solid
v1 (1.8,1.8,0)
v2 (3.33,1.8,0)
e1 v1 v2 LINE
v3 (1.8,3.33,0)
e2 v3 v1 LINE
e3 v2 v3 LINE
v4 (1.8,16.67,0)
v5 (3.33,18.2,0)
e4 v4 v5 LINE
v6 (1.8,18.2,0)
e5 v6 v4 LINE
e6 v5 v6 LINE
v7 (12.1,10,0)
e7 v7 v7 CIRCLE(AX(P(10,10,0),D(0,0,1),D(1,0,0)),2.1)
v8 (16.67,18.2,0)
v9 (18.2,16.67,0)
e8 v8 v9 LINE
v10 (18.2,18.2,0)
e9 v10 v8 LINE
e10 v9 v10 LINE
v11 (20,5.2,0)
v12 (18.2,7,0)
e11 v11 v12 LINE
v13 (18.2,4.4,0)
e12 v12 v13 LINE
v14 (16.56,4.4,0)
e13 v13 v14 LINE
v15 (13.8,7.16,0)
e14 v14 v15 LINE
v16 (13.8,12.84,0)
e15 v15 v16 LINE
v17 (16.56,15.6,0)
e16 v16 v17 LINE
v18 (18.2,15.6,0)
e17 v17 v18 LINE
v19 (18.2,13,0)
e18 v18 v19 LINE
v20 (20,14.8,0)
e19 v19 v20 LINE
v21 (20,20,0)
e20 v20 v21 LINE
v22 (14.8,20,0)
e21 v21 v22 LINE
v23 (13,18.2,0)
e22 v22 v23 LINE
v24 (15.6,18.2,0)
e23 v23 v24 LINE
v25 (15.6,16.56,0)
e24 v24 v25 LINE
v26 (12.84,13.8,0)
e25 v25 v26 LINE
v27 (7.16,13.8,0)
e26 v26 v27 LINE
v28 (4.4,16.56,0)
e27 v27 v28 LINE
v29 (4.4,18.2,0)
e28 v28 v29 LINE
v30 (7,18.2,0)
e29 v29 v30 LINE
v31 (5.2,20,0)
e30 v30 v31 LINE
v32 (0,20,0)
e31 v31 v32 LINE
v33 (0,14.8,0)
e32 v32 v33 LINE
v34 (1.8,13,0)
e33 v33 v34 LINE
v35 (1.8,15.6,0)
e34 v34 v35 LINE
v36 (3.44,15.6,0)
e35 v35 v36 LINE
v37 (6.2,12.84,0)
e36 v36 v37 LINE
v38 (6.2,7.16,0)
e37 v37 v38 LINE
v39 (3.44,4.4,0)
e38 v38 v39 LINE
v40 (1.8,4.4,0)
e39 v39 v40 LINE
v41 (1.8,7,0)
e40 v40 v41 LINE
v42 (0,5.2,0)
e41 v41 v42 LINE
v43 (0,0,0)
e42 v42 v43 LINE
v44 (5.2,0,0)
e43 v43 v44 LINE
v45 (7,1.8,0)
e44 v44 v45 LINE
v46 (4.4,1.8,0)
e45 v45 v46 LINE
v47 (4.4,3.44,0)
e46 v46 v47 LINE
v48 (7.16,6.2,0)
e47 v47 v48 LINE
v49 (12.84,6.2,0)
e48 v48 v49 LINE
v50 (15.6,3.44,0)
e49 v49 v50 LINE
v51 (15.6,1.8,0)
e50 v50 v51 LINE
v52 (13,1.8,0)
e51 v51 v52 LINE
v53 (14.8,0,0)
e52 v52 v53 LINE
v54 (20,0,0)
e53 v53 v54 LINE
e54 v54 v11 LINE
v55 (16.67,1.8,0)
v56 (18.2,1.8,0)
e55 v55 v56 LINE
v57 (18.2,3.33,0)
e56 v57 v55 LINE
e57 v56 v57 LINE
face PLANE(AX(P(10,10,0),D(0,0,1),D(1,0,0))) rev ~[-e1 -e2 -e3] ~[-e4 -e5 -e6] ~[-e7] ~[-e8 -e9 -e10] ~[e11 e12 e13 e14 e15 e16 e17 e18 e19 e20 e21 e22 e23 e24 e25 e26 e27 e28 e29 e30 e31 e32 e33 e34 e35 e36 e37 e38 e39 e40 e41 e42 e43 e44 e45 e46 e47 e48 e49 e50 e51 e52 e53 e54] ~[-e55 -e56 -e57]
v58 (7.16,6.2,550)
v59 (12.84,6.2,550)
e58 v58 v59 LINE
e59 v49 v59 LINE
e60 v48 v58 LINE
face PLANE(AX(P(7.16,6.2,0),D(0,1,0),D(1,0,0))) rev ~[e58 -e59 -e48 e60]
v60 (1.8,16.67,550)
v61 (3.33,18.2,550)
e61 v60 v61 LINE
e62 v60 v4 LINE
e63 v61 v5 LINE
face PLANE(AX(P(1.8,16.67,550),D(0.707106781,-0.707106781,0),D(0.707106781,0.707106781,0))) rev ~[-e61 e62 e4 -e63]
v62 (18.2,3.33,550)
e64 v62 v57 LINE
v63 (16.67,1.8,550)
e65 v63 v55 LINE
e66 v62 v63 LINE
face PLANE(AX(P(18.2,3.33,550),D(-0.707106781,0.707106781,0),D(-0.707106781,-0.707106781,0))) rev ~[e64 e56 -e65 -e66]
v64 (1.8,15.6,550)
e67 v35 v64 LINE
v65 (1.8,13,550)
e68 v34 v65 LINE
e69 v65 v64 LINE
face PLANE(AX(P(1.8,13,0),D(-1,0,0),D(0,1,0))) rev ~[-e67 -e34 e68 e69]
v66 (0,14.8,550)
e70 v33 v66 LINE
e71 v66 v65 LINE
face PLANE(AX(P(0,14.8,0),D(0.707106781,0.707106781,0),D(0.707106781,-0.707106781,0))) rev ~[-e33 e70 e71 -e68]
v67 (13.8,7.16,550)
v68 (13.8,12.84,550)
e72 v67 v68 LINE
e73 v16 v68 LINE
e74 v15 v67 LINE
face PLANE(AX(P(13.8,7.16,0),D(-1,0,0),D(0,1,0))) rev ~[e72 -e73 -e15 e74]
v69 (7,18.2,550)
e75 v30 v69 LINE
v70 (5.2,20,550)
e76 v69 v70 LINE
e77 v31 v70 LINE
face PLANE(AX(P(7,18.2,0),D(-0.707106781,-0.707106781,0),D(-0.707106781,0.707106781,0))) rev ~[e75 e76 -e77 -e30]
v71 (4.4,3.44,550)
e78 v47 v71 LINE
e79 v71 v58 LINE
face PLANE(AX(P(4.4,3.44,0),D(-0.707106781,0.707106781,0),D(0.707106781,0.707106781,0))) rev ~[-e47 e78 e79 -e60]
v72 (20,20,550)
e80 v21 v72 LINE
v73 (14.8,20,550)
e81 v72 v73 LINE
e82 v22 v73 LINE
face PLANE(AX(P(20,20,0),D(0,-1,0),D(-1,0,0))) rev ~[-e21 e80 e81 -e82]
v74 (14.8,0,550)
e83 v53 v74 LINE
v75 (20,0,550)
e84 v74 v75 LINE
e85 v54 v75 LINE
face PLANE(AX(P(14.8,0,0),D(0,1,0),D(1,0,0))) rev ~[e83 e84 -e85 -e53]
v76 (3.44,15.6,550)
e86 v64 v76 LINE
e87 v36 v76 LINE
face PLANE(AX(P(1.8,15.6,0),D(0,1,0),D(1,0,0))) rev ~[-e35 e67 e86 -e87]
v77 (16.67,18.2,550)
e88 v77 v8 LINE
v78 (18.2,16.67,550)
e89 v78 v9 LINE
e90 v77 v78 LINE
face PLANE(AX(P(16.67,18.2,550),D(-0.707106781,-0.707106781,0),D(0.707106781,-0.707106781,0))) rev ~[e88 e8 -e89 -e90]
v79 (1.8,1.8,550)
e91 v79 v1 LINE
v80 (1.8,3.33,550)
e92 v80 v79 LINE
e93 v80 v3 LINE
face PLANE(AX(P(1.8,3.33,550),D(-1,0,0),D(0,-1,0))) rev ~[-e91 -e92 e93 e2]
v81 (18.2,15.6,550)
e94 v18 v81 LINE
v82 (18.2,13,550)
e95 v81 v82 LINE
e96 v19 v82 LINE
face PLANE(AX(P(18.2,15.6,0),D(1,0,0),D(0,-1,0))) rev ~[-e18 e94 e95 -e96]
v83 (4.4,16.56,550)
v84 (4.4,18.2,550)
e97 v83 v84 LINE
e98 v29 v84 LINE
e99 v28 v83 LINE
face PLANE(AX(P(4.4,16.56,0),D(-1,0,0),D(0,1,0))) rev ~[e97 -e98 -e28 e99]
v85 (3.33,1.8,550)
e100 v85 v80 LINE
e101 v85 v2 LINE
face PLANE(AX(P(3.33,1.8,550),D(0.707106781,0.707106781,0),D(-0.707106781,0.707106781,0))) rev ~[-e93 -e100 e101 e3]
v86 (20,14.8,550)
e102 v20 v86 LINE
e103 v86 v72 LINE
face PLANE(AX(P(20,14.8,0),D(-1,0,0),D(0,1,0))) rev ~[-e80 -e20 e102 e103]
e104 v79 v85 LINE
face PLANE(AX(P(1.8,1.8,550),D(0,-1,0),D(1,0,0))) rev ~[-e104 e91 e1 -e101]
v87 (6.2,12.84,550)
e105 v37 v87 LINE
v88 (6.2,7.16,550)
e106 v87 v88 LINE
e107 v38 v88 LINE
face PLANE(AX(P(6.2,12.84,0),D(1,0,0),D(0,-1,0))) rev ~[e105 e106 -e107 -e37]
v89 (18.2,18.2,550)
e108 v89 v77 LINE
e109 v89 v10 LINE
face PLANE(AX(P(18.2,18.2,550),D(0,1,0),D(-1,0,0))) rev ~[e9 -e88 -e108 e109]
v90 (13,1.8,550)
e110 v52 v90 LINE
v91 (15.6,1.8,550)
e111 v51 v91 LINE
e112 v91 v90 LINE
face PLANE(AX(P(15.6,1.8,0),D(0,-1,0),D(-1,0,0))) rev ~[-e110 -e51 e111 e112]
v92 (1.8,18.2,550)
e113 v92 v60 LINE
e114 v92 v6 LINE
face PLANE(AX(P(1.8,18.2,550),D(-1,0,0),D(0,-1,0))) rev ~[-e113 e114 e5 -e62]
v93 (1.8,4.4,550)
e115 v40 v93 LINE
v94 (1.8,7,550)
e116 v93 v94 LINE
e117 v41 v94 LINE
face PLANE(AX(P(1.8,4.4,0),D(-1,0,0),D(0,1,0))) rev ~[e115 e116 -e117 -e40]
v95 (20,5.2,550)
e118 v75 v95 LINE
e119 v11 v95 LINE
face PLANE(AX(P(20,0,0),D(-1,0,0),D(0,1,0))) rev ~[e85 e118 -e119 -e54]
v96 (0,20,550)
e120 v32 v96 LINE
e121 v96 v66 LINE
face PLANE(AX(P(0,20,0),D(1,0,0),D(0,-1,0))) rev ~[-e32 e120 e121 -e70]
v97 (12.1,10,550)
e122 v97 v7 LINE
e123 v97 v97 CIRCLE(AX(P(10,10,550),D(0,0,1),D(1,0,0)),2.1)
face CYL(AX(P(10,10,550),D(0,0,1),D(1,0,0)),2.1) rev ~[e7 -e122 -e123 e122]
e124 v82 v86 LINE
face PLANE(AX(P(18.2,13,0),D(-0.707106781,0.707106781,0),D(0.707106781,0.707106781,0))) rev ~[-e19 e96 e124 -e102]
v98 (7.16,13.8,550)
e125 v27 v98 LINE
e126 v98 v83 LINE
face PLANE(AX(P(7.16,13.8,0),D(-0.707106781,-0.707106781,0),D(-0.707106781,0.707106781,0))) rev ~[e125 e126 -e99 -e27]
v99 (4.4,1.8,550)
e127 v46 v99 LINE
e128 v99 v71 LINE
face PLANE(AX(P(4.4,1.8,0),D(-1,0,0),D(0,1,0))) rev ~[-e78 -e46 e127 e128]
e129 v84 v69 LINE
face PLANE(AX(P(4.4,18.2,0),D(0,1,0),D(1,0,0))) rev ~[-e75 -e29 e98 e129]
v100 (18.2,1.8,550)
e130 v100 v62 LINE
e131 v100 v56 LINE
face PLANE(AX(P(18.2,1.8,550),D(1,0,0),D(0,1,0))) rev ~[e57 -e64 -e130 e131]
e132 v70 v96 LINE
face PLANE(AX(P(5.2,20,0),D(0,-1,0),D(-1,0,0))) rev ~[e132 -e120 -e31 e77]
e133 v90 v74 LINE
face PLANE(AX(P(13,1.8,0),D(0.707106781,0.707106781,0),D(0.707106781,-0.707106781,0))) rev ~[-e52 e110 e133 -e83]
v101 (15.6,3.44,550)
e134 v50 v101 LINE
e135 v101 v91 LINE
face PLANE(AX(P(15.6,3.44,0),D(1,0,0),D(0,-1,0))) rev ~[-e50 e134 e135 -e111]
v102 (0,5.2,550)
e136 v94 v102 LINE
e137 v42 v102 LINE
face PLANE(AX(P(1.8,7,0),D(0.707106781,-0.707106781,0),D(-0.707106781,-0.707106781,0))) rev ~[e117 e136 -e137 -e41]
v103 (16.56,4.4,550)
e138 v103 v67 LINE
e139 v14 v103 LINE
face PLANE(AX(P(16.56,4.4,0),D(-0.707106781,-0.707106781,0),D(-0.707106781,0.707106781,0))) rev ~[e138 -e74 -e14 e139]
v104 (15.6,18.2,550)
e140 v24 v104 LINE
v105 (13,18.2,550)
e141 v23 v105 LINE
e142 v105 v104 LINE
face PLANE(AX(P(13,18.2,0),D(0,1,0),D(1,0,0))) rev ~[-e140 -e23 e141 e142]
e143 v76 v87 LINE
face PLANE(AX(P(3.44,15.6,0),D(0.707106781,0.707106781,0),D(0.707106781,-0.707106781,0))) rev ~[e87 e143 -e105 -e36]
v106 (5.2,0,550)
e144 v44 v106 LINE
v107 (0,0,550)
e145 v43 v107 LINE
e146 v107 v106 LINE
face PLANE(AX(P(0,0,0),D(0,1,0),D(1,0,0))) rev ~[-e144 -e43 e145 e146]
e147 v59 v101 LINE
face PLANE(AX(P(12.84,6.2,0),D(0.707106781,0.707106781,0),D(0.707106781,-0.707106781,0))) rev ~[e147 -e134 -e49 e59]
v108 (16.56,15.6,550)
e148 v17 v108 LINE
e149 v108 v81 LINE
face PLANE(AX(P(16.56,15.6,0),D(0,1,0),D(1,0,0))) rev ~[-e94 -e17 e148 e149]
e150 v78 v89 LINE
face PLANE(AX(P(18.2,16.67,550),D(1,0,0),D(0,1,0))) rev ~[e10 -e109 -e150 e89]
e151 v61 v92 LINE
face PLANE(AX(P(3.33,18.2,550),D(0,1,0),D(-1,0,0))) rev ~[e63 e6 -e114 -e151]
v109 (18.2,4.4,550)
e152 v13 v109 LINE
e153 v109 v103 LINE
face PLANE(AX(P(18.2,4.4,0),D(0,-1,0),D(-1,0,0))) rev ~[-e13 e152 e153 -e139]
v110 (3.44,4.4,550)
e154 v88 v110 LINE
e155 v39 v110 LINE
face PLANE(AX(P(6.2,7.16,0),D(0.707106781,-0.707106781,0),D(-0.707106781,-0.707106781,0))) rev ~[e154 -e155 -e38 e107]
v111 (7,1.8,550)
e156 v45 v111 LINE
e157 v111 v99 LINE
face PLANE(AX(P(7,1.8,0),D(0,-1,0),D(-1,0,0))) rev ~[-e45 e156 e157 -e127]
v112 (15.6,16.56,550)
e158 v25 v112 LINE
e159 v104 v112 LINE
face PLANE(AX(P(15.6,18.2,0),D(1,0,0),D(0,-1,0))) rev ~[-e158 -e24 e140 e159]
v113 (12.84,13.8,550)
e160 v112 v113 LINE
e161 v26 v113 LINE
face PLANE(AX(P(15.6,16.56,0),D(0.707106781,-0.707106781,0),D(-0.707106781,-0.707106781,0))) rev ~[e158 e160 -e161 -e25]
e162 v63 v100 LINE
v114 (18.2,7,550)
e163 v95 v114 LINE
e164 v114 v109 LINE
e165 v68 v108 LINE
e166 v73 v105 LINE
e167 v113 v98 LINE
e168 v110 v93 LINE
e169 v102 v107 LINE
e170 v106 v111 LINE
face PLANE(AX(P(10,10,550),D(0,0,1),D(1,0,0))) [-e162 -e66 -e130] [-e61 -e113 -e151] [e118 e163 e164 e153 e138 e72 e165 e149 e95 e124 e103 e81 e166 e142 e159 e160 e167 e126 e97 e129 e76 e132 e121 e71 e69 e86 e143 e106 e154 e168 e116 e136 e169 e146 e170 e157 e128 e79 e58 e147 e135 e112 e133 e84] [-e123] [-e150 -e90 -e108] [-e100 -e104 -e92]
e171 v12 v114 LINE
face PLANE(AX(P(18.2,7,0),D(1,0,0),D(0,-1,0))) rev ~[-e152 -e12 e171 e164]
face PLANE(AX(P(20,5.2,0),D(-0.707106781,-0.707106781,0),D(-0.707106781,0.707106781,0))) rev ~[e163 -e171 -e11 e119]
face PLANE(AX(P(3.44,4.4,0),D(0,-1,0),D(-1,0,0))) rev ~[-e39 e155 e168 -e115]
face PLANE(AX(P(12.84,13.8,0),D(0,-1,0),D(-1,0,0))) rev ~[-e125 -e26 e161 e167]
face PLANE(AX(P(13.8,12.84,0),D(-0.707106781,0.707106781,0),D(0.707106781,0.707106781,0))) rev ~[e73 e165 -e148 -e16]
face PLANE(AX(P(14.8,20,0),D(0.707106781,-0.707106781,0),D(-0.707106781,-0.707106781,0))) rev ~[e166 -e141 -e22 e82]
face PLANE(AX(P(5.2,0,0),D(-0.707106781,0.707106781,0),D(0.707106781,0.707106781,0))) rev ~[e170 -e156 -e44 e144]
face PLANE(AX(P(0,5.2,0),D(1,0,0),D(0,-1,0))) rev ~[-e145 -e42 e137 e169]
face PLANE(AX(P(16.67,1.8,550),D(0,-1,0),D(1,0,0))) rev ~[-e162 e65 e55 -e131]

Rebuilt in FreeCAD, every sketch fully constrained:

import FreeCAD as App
import Part
import Sketcher
from FreeCAD import Vector
Q = App.Units.Quantity


def add_polygon(sketch, points):
    """Adds a closed chain of lines whose ends are joined by coincident constraints."""
    first, n = sketch.GeometryCount, len(points)
    for a, b in zip(points, points[1:] + points[:1]):
        sketch.addGeometry(Part.LineSegment(App.Vector(*a, 0), App.Vector(*b, 0)), False)
    for i in range(n):
        sketch.addConstraint(Sketcher.Constraint("Coincident", first + i, 2, first + (i + 1) % n, 1))

doc = App.newDocument("Part")
body = doc.addObject("PartDesign::Body", "Body")

sketch1 = doc.addObject("Sketcher::SketchObject", "Sketch")
body.addObject(sketch1)
sketch1.AttachmentSupport = (doc.XY_Plane, [""])
sketch1.MapMode = "FlatFace"
add_polygon(sketch1, [(0, 5.2), (0, 0), (5.2, 0), (7, 1.8), (4.4, 1.8), (4.4, 3.4), (7.2, 6.2), (12.8, 6.2), (15.6, 3.4), (15.6, 1.8), (13, 1.8), (14.8, 0), (20, 0), (20, 5.2), (18.2, 7), (18.2, 4.4), (16.6, 4.4), (13.8, 7.2), (13.8, 12.8), (16.6, 15.6), (18.2, 15.6), (18.2, 13), (20, 14.8), (20, 20), (14.8, 20), (13, 18.2), (15.6, 18.2), (15.6, 16.6), (12.8, 13.8), (7.2, 13.8), (4.4, 16.6), (4.4, 18.2), (7, 18.2), (5.2, 20), (0, 20), (0, 14.8), (1.8, 13), (1.8, 15.6), (3.4, 15.6), (6.2, 12.8), (6.2, 7.2), (3.4, 4.4), (1.8, 4.4), (1.8, 7)])
sketch1.addConstraint(Sketcher.Constraint("Vertical", 0))
sketch1.addConstraint(Sketcher.Constraint("Horizontal", 1))
sketch1.addConstraint(Sketcher.Constraint("Horizontal", 3))
sketch1.addConstraint(Sketcher.Constraint("Vertical", 4))
sketch1.addConstraint(Sketcher.Constraint("Horizontal", 6))
sketch1.addConstraint(Sketcher.Constraint("Vertical", 8))
sketch1.addConstraint(Sketcher.Constraint("Horizontal", 9))
sketch1.addConstraint(Sketcher.Constraint("Horizontal", 11))
sketch1.addConstraint(Sketcher.Constraint("Vertical", 12))
sketch1.addConstraint(Sketcher.Constraint("Vertical", 14))
sketch1.addConstraint(Sketcher.Constraint("Horizontal", 15))
sketch1.addConstraint(Sketcher.Constraint("Vertical", 17))
sketch1.addConstraint(Sketcher.Constraint("Horizontal", 19))
sketch1.addConstraint(Sketcher.Constraint("Vertical", 20))
sketch1.addConstraint(Sketcher.Constraint("Vertical", 22))
sketch1.addConstraint(Sketcher.Constraint("Horizontal", 23))
sketch1.addConstraint(Sketcher.Constraint("Horizontal", 25))
sketch1.addConstraint(Sketcher.Constraint("Vertical", 26))
sketch1.addConstraint(Sketcher.Constraint("Horizontal", 28))
sketch1.addConstraint(Sketcher.Constraint("Vertical", 30))
sketch1.addConstraint(Sketcher.Constraint("Horizontal", 31))
sketch1.addConstraint(Sketcher.Constraint("Horizontal", 33))
sketch1.addConstraint(Sketcher.Constraint("Vertical", 34))
sketch1.addConstraint(Sketcher.Constraint("Vertical", 36))
sketch1.addConstraint(Sketcher.Constraint("Horizontal", 37))
sketch1.addConstraint(Sketcher.Constraint("Vertical", 39))
sketch1.addConstraint(Sketcher.Constraint("Horizontal", 41))
sketch1.addConstraint(Sketcher.Constraint("Vertical", 42))
sketch1.addConstraint(Sketcher.Constraint("Coincident", 0, 2, -1, 1))
sketch1.addConstraint(Sketcher.Constraint("PointOnObject", 10, 2, -1))
sketch1.addConstraint(Sketcher.Constraint("PointOnObject", 33, 2, -2))
sketch1.addConstraint(Sketcher.Constraint("Parallel", 2, 5))
sketch1.addConstraint(Sketcher.Constraint("Perpendicular", 5, 7))
sketch1.addConstraint(Sketcher.Constraint("Parallel", 7, 10))
sketch1.addConstraint(Sketcher.Constraint("Parallel", 10, 13))
sketch1.addConstraint(Sketcher.Constraint("Parallel", 13, 16))
sketch1.addConstraint(Sketcher.Constraint("Perpendicular", 16, 18))
sketch1.addConstraint(Sketcher.Constraint("Parallel", 18, 21))
sketch1.addConstraint(Sketcher.Constraint("Parallel", 21, 24))
sketch1.addConstraint(Sketcher.Constraint("Parallel", 24, 27))
sketch1.addConstraint(Sketcher.Constraint("Perpendicular", 27, 29))
sketch1.addConstraint(Sketcher.Constraint("Parallel", 29, 32))
sketch1.addConstraint(Sketcher.Constraint("Parallel", 32, 35))
sketch1.addConstraint(Sketcher.Constraint("Parallel", 35, 38))
sketch1.addConstraint(Sketcher.Constraint("Perpendicular", 38, 40))
sketch1.addConstraint(Sketcher.Constraint("Parallel", 40, 43))
sketch1.addConstraint(Sketcher.Constraint("Horizontal", 4, 2, 7, 2))
sketch1.addConstraint(Sketcher.Constraint("Horizontal", 3, 2, 8, 2))
sketch1.addConstraint(Sketcher.Constraint("Horizontal", 26, 2, 29, 2))
sketch1.addConstraint(Sketcher.Constraint("Horizontal", 25, 2, 30, 2))
sketch1.addConstraint(Sketcher.Constraint("Horizontal", 23, 2, 32, 2))
sketch1.addConstraint(Sketcher.Constraint("Horizontal", 21, 2, 34, 2))
sketch1.addConstraint(Sketcher.Constraint("Horizontal", 20, 2, 35, 2))
sketch1.addConstraint(Sketcher.Constraint("Horizontal", 19, 2, 36, 2))
sketch1.addConstraint(Sketcher.Constraint("Horizontal", 17, 2, 38, 2))
sketch1.addConstraint(Sketcher.Constraint("Horizontal", 16, 2, 39, 2))
sketch1.addConstraint(Sketcher.Constraint("Horizontal", 15, 2, 40, 2))
sketch1.addConstraint(Sketcher.Constraint("Horizontal", 13, 2, 42, 2))
sketch1.addConstraint(Sketcher.Constraint("Horizontal", 12, 2, 43, 2))
sketch1.addConstraint(Sketcher.Constraint("Vertical", 15, 2, 18, 2))
sketch1.addConstraint(Sketcher.Constraint("Vertical", 14, 2, 19, 2))
sketch1.addConstraint(Sketcher.Constraint("Vertical", 12, 2, 21, 2))
sketch1.addConstraint(Sketcher.Constraint("Vertical", 10, 2, 23, 2))
sketch1.addConstraint(Sketcher.Constraint("Vertical", 9, 2, 24, 2))
sketch1.addConstraint(Sketcher.Constraint("Vertical", 8, 2, 25, 2))
sketch1.addConstraint(Sketcher.Constraint("Vertical", 6, 2, 27, 2))
sketch1.addConstraint(Sketcher.Constraint("Vertical", 5, 2, 28, 2))
sketch1.addConstraint(Sketcher.Constraint("Vertical", 4, 2, 29, 2))
sketch1.addConstraint(Sketcher.Constraint("Vertical", 2, 2, 31, 2))
sketch1.addConstraint(Sketcher.Constraint("Equal", 3, 9))
sketch1.addConstraint(Sketcher.Constraint("Equal", 1, 11))
sketch1.addConstraint(Sketcher.Constraint("Equal", 19, 37))
sketch1.addConstraint(Sketcher.Constraint("Equal", 33, 0))
sketch1.addConstraint(Sketcher.Constraint("Equal", 41, 4))
sketch1.addConstraint(Sketcher.Constraint("Equal", 31, 14))
sketch1.addConstraint(Sketcher.Constraint("Equal", 28, 17))
sketch1.addConstraint(Sketcher.Constraint("Equal", 14, 20))
sketch1.addConstraint(Sketcher.Constraint("Equal", 12, 22))
sketch1.addConstraint(Sketcher.Constraint("Equal", 8, 26))
sketch1.addConstraint(Sketcher.Constraint("Equal", 10, 13))
sketch1.addConstraint(Sketcher.Constraint("Equal", 7, 16))
sketch1.addConstraint(Sketcher.Constraint("DistanceX", 1, 1, 1, 2, Q("5.2 mm")))
sketch1.addConstraint(Sketcher.Constraint("DistanceX", 3, 2, 3, 1, Q("2.6 mm")))
sketch1.addConstraint(Sketcher.Constraint("DistanceX", -1, 1, 2, 2, Q("7 mm")))
sketch1.addConstraint(Sketcher.Constraint("DistanceX", -1, 1, 9, 2, Q("13 mm")))
sketch1.addConstraint(Sketcher.Constraint("DistanceY", 12, 2, 6, 2, Q("1 mm")))
sketch1.addConstraint(Sketcher.Constraint("DistanceX", 6, 1, 6, 2, Q("5.68 mm")))
pad1 = doc.addObject("PartDesign::Pad", "Pad")
body.addObject(pad1)
pad1.Profile = sketch1
pad1.Length = 550

sketch2 = doc.addObject("Sketcher::SketchObject", "Sketch001")
body.addObject(sketch2)
sketch2.AttachmentSupport = (doc.XY_Plane, [""])
sketch2.MapMode = "FlatFace"
sketch2.AttachmentOffset = App.Placement(Vector(0, 0, 550), App.Rotation())
sketch2.addGeometry(Part.Circle(Vector(10, 10, 0), Vector(0, 0, 1), 2.1), False)
add_polygon(sketch2, [(18.2, 16.7), (18.2, 18.2), (16.7, 18.2)])
add_polygon(sketch2, [(3.3, 18.2), (1.8, 18.2), (1.8, 16.7)])
add_polygon(sketch2, [(1.8, 3.3), (1.8, 1.8), (3.3, 1.8)])
add_polygon(sketch2, [(16.7, 1.8), (18.2, 1.8), (18.2, 3.3)])
sketch2.addConstraint(Sketcher.Constraint("Vertical", 1))
sketch2.addConstraint(Sketcher.Constraint("Horizontal", 2))
sketch2.addConstraint(Sketcher.Constraint("Horizontal", 4))
sketch2.addConstraint(Sketcher.Constraint("Vertical", 5))
sketch2.addConstraint(Sketcher.Constraint("Vertical", 7))
sketch2.addConstraint(Sketcher.Constraint("Horizontal", 8))
sketch2.addConstraint(Sketcher.Constraint("Horizontal", 10))
sketch2.addConstraint(Sketcher.Constraint("Vertical", 11))
sketch2.addConstraint(Sketcher.Constraint("Perpendicular", 3, 6))
sketch2.addConstraint(Sketcher.Constraint("Perpendicular", 6, 9))
sketch2.addConstraint(Sketcher.Constraint("Perpendicular", 9, 12))
sketch2.addConstraint(Sketcher.Constraint("Horizontal", 2, 2, 4, 2))
sketch2.addConstraint(Sketcher.Constraint("Horizontal", 3, 2, 5, 2))
sketch2.addConstraint(Sketcher.Constraint("Horizontal", 8, 2, 10, 2))
sketch2.addConstraint(Sketcher.Constraint("Horizontal", 9, 2, 11, 2))
sketch2.addConstraint(Sketcher.Constraint("Vertical", 5, 2, 7, 2))
sketch2.addConstraint(Sketcher.Constraint("Vertical", 6, 2, 8, 2))
sketch2.addConstraint(Sketcher.Constraint("Vertical", 3, 2, 10, 2))
sketch2.addConstraint(Sketcher.Constraint("Vertical", 2, 2, 12, 2))
sketch2.addConstraint(Sketcher.Constraint("Diameter", 0, Q("4.2 mm")))
sketch2.addConstraint(Sketcher.Constraint("DistanceX", -1, 1, 0, 3, Q("10 mm")))
sketch2.addConstraint(Sketcher.Constraint("DistanceY", -1, 1, 0, 3, Q("10 mm")))
sketch2.addConstraint(Sketcher.Constraint("DistanceX", 2, 2, 2, 1, Q("1.53 mm")))
sketch2.addConstraint(Sketcher.Constraint("DistanceX", -1, 1, 1, 2, Q("18.2 mm")))
sketch2.addConstraint(Sketcher.Constraint("DistanceY", -1, 1, 1, 2, Q("18.2 mm")))
sketch2.addConstraint(Sketcher.Constraint("DistanceX", -1, 1, 4, 2, Q("1.8 mm")))
sketch2.addConstraint(Sketcher.Constraint("DistanceY", -1, 1, 7, 2, Q("1.8 mm")))
pocket1 = doc.addObject("PartDesign::Pocket", "Pocket")
body.addObject(pocket1)
pocket1.Profile = sketch2
pocket1.Type = "ThroughAll"

doc.recompute()
